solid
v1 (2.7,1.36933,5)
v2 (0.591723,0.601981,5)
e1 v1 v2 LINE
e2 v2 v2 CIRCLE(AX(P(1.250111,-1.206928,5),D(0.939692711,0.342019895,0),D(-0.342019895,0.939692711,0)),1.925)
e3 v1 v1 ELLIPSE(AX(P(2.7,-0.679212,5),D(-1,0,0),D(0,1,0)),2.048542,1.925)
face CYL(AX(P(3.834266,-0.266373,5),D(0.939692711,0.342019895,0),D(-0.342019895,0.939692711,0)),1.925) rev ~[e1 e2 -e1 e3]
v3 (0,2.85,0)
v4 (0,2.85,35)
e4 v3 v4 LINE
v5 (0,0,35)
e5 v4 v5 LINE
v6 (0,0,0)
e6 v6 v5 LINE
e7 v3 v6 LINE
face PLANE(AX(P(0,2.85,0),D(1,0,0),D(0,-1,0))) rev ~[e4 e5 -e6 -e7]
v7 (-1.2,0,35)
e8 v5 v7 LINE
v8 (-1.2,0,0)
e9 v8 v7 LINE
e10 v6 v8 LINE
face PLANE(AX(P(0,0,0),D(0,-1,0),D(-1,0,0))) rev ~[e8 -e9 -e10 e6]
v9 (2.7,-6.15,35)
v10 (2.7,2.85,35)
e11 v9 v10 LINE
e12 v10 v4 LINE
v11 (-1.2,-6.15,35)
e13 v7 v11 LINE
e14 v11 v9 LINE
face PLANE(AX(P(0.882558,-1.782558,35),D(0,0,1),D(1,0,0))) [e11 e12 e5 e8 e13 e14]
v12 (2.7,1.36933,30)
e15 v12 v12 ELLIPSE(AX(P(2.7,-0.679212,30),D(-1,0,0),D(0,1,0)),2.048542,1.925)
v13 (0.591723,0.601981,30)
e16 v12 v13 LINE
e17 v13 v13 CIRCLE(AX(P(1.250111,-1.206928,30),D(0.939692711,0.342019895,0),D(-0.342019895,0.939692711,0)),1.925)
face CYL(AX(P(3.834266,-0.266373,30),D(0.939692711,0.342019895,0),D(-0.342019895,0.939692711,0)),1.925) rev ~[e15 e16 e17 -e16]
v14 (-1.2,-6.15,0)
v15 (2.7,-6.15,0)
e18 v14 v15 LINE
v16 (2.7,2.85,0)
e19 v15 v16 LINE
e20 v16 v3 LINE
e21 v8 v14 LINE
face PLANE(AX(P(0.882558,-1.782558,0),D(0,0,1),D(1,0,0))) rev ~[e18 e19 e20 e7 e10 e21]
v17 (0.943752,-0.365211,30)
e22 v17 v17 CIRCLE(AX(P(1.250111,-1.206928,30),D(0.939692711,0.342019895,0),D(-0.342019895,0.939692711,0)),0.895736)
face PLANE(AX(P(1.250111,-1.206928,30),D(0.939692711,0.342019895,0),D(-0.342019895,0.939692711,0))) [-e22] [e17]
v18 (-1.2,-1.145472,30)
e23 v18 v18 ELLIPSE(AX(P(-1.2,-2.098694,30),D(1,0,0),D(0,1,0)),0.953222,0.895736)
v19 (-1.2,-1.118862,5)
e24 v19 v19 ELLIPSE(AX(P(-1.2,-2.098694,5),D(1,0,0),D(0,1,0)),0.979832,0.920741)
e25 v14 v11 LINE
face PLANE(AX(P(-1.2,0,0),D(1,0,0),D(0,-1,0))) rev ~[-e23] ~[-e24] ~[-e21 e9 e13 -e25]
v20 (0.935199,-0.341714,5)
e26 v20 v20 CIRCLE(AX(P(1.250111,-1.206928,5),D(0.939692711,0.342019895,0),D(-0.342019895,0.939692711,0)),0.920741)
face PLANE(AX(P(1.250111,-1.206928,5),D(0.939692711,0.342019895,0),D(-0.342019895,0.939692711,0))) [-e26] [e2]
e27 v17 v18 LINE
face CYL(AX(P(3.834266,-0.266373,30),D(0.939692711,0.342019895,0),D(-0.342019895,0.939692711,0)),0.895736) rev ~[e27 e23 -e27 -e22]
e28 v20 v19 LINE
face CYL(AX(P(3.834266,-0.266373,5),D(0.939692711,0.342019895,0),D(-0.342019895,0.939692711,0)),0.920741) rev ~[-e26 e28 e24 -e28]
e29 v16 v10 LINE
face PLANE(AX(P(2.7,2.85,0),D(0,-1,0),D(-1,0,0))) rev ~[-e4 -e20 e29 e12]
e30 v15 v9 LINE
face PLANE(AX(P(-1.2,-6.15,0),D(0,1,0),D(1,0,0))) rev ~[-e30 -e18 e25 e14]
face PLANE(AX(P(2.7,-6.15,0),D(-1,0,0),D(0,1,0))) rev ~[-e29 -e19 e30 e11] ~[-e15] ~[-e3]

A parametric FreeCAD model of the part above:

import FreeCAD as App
import Part
import Sketcher

V = App.Vector
Q = App.Units.Quantity


def add_polygon(sketch, points):
    """Adds a closed chain of lines whose ends are joined by coincident constraints."""
    first, n = sketch.GeometryCount, len(points)
    for a, b in zip(points, points[1:] + points[:1]):
        sketch.addGeometry(Part.LineSegment(App.Vector(*a, 0), App.Vector(*b, 0)), False)
    for i in range(n):
        sketch.addConstraint(Sketcher.Constraint("Coincident", first + i, 2, first + (i + 1) % n, 1))

doc = App.newDocument("Part")
params = doc.addObject("Spreadsheet::Sheet", "Params")
for row, (alias, value) in enumerate([
    ("sketch1_height", "9 mm"),
    ("sketch1_width", "1.2 mm"),
    ("sketch1_width2", "3.9 mm"),
    ("sketch1_height2", "2.85 mm"),
    ("pad1_length", "35 mm"),
    ("sketch3_diameter", "3.85 mm"),
    ("pocket2_length", "2.75 mm"),
], start=1):
    params.set(f"A{row}", alias)
    params.set(f"B{row}", "=" + value)
    params.setAlias(f"B{row}", alias)

body = doc.addObject("PartDesign::Body", "Body")

sketch1 = body.newObject("Sketcher::SketchObject", "Sketch")
sketch1.AttachmentSupport = (doc.getObject("XY_Plane"), [""])
sketch1.MapMode = "FlatFace"
add_polygon(sketch1, [(0, 2.85), (0, 0), (-1.2, 0), (-1.2, -6.15), (2.7, -6.15), (2.7, 2.85)])
sketch1.addConstraint(Sketcher.Constraint("Vertical", 0))
sketch1.addConstraint(Sketcher.Constraint("Horizontal", 1))
sketch1.addConstraint(Sketcher.Constraint("Vertical", 2))
sketch1.addConstraint(Sketcher.Constraint("Horizontal", 3))
sketch1.addConstraint(Sketcher.Constraint("Vertical", 4))
sketch1.addConstraint(Sketcher.Constraint("Horizontal", 5))
sketch1.addConstraint(Sketcher.Constraint("Coincident", 0, 2, -1, 1))
sketch1.addConstraint(Sketcher.Constraint("DistanceY", 4, 1, 4, 2, Q("9 mm")))
sketch1.addConstraint(Sketcher.Constraint("DistanceX", 1, 2, 1, 1, Q("1.2 mm")))
sketch1.addConstraint(Sketcher.Constraint("DistanceX", 3, 1, 3, 2, Q("3.9 mm")))
sketch1.addConstraint(Sketcher.Constraint("DistanceY", 0, 2, 0, 1, Q("2.85 mm")))
sketch1.setExpression("Constraints[13]", "Params.sketch1_height")
sketch1.setExpression("Constraints[14]", "Params.sketch1_width")
sketch1.setExpression("Constraints[15]", "Params.sketch1_width2")
sketch1.setExpression("Constraints[16]", "Params.sketch1_height2")
pad1 = body.newObject("PartDesign::Pad", "Pad")
pad1.Profile = sketch1
pad1.setExpression("Length", "Params.pad1_length")

sketch2 = body.newObject("Sketcher::SketchObject", "Sketch001")
sketch2.Placement = App.Placement(V(3.300132, 1.20115, 0), App.Rotation(V(-0.342019895, 0.939692711, 0), V(0, 0, 1), V(0.939692711, 0.342019895, 0), "ZXY"))
sketch2.addGeometry(Part.Circle(V(-1.561705, 30, 0), V(0, 0, 1), 0.895736), False)
sketch2.addGeometry(Part.Circle(V(-1.561705, 5, 0), V(0, 0, 1), 0.920741), False)
sketch2.addConstraint(Sketcher.Constraint("Vertical", 0, 3, 1, 3))
sketch2.addConstraint(Sketcher.Constraint("DistanceY", -1, 1, 0, 3, Q("30 mm")))
sketch2.addConstraint(Sketcher.Constraint("DistanceY", -1, 1, 1, 3, Q("5 mm")))
sketch2.addConstraint(Sketcher.Constraint("Diameter", 0, Q("1.791472 mm")))
sketch2.addConstraint(Sketcher.Constraint("Diameter", 1, Q("1.841482 mm")))
sketch2.addConstraint(Sketcher.Constraint("DistanceX", 0, 3, -1, 1, Q("1.561705 mm")))
pocket1 = body.newObject("PartDesign::Pocket", "Pocket")
pocket1.Profile = sketch2
pocket1.Type = "ThroughAll"

sketch3 = body.newObject("Sketcher::SketchObject", "Sketch002")
sketch3.Placement = App.Placement(V(3.300132, 1.20115, 0), App.Rotation(V(-0.342019895, 0.939692711, 0), V(0, 0, 1), V(0.939692711, 0.342019895, 0), "ZXY"))
sketch3.addGeometry(Part.Circle(V(-1.561705, 30, 0), V(0, 0, 1), 1.925), False)
sketch3.addGeometry(Part.Circle(V(-1.561705, 5, 0), V(0, 0, 1), 1.925), False)
sketch3.addConstraint(Sketcher.Constraint("Equal", 0, 1))
sketch3.addConstraint(Sketcher.Constraint("Vertical", 0, 3, 1, 3))
sketch3.addConstraint(Sketcher.Constraint("Diameter", 0, Q("3.85 mm")))
sketch3.addConstraint(Sketcher.Constraint("DistanceY", -1, 1, 0, 3, Q("30 mm")))
sketch3.addConstraint(Sketcher.Constraint("DistanceY", -1, 1, 1, 3, Q("5 mm")))
sketch3.addConstraint(Sketcher.Constraint("DistanceX", 0, 3, -1, 1, Q("1.561705 mm")))
sketch3.setExpression("Constraints[2]", "Params.sketch3_diameter")
pocket2 = body.newObject("PartDesign::Pocket", "Pocket001")
pocket2.Profile = sketch3
pocket2.setExpression("Length", "Params.pocket2_length")

doc.recompute()
